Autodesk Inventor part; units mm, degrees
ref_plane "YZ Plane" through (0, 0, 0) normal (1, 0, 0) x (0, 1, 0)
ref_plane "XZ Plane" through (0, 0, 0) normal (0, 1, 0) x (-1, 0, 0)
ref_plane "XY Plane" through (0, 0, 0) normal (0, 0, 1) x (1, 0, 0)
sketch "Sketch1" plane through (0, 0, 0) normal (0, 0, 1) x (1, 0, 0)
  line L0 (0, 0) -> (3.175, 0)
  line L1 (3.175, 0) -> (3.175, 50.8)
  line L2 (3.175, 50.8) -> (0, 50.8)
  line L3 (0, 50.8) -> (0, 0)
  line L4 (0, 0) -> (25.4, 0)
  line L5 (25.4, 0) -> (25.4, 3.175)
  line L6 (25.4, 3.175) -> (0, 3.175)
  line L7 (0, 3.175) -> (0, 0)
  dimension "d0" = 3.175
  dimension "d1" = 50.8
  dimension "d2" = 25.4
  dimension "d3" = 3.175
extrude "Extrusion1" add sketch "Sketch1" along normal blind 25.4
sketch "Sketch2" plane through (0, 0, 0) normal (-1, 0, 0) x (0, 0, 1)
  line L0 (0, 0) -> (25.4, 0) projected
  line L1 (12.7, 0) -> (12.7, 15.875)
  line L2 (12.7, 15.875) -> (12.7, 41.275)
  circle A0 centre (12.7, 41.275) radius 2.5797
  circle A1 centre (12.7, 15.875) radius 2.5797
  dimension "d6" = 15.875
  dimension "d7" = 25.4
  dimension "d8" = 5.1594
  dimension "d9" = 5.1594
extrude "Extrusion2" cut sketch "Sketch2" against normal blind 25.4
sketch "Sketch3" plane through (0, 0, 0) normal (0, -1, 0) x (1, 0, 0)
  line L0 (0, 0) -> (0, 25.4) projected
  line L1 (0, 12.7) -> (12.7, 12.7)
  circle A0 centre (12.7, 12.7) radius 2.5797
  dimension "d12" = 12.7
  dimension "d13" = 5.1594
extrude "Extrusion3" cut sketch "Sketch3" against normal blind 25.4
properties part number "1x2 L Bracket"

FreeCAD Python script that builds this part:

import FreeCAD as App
import Part
import Sketcher

V = App.Vector
Q = App.Units.Quantity

doc = App.newDocument("Part")
params = doc.addObject("Spreadsheet::Sheet", "Params")
for row, (alias, value) in enumerate([
    ("sketch1_width", "1 in"),
    ("sketch1_height", "2 in"),
    ("sketch1_width2", "0.125 in"),
    ("pad1_length", "1 in"),
    ("sketch2_diameter", "0.203126 in"),
    ("pocket1_length", "1 in"),
    ("sketch3_diameter", "0.203126 in"),
    ("pocket2_length", "1 in"),
], start=1):
    params.set(f"A{row}", alias)
    params.set(f"B{row}", "=" + value)
    params.setAlias(f"B{row}", alias)

body = doc.addObject("PartDesign::Body", "Body")

# Sketch on XY plane
sketch1 = doc.addObject("Sketcher::SketchObject", "Sketch")
body.addObject(sketch1)
sketch1.AttachmentSupport = (doc.XY_Plane, [""])
sketch1.MapMode = "FlatFace"
sketch1.addGeometry(Part.LineSegment(V(0, 0, 0), V(25.4, 0, 0)), False)
sketch1.addGeometry(Part.LineSegment(V(25.4, 0, 0), V(25.4, 3.175, 0)), False)
sketch1.addGeometry(Part.LineSegment(V(25.4, 3.175, 0), V(3.175, 3.175, 0)), False)
sketch1.addGeometry(Part.LineSegment(V(3.175, 3.175, 0), V(3.175, 50.8, 0)), False)
sketch1.addGeometry(Part.LineSegment(V(3.175, 50.8, 0), V(0, 50.8, 0)), False)
sketch1.addGeometry(Part.LineSegment(V(0, 50.8, 0), V(0, 0, 0)), False)
sketch1.addConstraint(Sketcher.Constraint("Coincident", 0, 2, 1, 1))
sketch1.addConstraint(Sketcher.Constraint("Coincident", 1, 2, 2, 1))
sketch1.addConstraint(Sketcher.Constraint("Coincident", 2, 2, 3, 1))
sketch1.addConstraint(Sketcher.Constraint("Coincident", 3, 2, 4, 1))
sketch1.addConstraint(Sketcher.Constraint("Coincident", 4, 2, 5, 1))
sketch1.addConstraint(Sketcher.Constraint("Coincident", 5, 2, 0, 1))
sketch1.addConstraint(Sketcher.Constraint("Horizontal", 0))
sketch1.addConstraint(Sketcher.Constraint("Vertical", 1))
sketch1.addConstraint(Sketcher.Constraint("Horizontal", 2))
sketch1.addConstraint(Sketcher.Constraint("Vertical", 3))
sketch1.addConstraint(Sketcher.Constraint("Horizontal", 4))
sketch1.addConstraint(Sketcher.Constraint("Vertical", 5))
sketch1.addConstraint(Sketcher.Constraint("Coincident", 5, 2, -1, 1))
sketch1.addConstraint(Sketcher.Constraint("Equal", 4, 1))
sketch1.addConstraint(Sketcher.Constraint("DistanceX", 0, 1, 0, 2, Q("1 in")))
sketch1.addConstraint(Sketcher.Constraint("DistanceY", 5, 2, 5, 1, Q("2 in")))
sketch1.addConstraint(Sketcher.Constraint("DistanceX", 4, 2, 4, 1, Q("0.125 in")))
sketch1.setExpression("Constraints[14]", "Params.sketch1_width")
sketch1.setExpression("Constraints[15]", "Params.sketch1_height")
sketch1.setExpression("Constraints[16]", "Params.sketch1_width2")
pad1 = doc.addObject("PartDesign::Pad", "Pad")
body.addObject(pad1)
pad1.Profile = sketch1
pad1.setExpression("Length", "Params.pad1_length")

# Sketch on YZ plane
sketch2 = doc.addObject("Sketcher::SketchObject", "Sketch001")
body.addObject(sketch2)
sketch2.AttachmentSupport = (doc.YZ_Plane, [""])
sketch2.MapMode = "FlatFace"
sketch2.addGeometry(Part.Circle(V(15.875, 12.7, 0), V(0, 0, 1), 2.5797), False)
sketch2.addGeometry(Part.Circle(V(41.275, 12.7, 0), V(0, 0, 1), 2.5797), False)
sketch2.addConstraint(Sketcher.Constraint("Equal", 0, 1))
sketch2.addConstraint(Sketcher.Constraint("Horizontal", 0, 3, 1, 3))
sketch2.addConstraint(Sketcher.Constraint("Diameter", 0, Q("0.203126 in")))
sketch2.addConstraint(Sketcher.Constraint("DistanceX", 0, 3, 1, 3, Q("1 in")))
sketch2.addConstraint(Sketcher.Constraint("DistanceX", -1, 1, 0, 3, Q("0.625 in")))
sketch2.addConstraint(Sketcher.Constraint("DistanceY", -1, 1, 0, 3, Q("0.5 in")))
sketch2.setExpression("Constraints[2]", "Params.sketch2_diameter")
pocket1 = doc.addObject("PartDesign::Pocket", "Pocket")
body.addObject(pocket1)
pocket1.Profile = sketch2
pocket1.setExpression("Length", "Params.pocket1_length")
pocket1.Reversed = True

# Sketch on XZ plane
sketch3 = doc.addObject("Sketcher::SketchObject", "Sketch002")
body.addObject(sketch3)
sketch3.AttachmentSupport = (doc.XZ_Plane, [""])
sketch3.MapMode = "FlatFace"
sketch3.addGeometry(Part.Circle(V(12.7, 12.7, 0), V(0, 0, 1), 2.5797), False)
sketch3.addConstraint(Sketcher.Constraint("Diameter", 0, Q("0.203126 in")))
sketch3.addConstraint(Sketcher.Constraint("DistanceX", -1, 1, 0, 3, Q("0.5 in")))
sketch3.addConstraint(Sketcher.Constraint("DistanceY", -1, 1, 0, 3, Q("0.5 in")))
sketch3.setExpression("Constraints[0]", "Params.sketch3_diameter")
pocket2 = doc.addObject("PartDesign::Pocket", "Pocket001")
body.addObject(pocket2)
pocket2.Profile = sketch3
pocket2.setExpression("Length", "Params.pocket2_length")

doc.recompute()
